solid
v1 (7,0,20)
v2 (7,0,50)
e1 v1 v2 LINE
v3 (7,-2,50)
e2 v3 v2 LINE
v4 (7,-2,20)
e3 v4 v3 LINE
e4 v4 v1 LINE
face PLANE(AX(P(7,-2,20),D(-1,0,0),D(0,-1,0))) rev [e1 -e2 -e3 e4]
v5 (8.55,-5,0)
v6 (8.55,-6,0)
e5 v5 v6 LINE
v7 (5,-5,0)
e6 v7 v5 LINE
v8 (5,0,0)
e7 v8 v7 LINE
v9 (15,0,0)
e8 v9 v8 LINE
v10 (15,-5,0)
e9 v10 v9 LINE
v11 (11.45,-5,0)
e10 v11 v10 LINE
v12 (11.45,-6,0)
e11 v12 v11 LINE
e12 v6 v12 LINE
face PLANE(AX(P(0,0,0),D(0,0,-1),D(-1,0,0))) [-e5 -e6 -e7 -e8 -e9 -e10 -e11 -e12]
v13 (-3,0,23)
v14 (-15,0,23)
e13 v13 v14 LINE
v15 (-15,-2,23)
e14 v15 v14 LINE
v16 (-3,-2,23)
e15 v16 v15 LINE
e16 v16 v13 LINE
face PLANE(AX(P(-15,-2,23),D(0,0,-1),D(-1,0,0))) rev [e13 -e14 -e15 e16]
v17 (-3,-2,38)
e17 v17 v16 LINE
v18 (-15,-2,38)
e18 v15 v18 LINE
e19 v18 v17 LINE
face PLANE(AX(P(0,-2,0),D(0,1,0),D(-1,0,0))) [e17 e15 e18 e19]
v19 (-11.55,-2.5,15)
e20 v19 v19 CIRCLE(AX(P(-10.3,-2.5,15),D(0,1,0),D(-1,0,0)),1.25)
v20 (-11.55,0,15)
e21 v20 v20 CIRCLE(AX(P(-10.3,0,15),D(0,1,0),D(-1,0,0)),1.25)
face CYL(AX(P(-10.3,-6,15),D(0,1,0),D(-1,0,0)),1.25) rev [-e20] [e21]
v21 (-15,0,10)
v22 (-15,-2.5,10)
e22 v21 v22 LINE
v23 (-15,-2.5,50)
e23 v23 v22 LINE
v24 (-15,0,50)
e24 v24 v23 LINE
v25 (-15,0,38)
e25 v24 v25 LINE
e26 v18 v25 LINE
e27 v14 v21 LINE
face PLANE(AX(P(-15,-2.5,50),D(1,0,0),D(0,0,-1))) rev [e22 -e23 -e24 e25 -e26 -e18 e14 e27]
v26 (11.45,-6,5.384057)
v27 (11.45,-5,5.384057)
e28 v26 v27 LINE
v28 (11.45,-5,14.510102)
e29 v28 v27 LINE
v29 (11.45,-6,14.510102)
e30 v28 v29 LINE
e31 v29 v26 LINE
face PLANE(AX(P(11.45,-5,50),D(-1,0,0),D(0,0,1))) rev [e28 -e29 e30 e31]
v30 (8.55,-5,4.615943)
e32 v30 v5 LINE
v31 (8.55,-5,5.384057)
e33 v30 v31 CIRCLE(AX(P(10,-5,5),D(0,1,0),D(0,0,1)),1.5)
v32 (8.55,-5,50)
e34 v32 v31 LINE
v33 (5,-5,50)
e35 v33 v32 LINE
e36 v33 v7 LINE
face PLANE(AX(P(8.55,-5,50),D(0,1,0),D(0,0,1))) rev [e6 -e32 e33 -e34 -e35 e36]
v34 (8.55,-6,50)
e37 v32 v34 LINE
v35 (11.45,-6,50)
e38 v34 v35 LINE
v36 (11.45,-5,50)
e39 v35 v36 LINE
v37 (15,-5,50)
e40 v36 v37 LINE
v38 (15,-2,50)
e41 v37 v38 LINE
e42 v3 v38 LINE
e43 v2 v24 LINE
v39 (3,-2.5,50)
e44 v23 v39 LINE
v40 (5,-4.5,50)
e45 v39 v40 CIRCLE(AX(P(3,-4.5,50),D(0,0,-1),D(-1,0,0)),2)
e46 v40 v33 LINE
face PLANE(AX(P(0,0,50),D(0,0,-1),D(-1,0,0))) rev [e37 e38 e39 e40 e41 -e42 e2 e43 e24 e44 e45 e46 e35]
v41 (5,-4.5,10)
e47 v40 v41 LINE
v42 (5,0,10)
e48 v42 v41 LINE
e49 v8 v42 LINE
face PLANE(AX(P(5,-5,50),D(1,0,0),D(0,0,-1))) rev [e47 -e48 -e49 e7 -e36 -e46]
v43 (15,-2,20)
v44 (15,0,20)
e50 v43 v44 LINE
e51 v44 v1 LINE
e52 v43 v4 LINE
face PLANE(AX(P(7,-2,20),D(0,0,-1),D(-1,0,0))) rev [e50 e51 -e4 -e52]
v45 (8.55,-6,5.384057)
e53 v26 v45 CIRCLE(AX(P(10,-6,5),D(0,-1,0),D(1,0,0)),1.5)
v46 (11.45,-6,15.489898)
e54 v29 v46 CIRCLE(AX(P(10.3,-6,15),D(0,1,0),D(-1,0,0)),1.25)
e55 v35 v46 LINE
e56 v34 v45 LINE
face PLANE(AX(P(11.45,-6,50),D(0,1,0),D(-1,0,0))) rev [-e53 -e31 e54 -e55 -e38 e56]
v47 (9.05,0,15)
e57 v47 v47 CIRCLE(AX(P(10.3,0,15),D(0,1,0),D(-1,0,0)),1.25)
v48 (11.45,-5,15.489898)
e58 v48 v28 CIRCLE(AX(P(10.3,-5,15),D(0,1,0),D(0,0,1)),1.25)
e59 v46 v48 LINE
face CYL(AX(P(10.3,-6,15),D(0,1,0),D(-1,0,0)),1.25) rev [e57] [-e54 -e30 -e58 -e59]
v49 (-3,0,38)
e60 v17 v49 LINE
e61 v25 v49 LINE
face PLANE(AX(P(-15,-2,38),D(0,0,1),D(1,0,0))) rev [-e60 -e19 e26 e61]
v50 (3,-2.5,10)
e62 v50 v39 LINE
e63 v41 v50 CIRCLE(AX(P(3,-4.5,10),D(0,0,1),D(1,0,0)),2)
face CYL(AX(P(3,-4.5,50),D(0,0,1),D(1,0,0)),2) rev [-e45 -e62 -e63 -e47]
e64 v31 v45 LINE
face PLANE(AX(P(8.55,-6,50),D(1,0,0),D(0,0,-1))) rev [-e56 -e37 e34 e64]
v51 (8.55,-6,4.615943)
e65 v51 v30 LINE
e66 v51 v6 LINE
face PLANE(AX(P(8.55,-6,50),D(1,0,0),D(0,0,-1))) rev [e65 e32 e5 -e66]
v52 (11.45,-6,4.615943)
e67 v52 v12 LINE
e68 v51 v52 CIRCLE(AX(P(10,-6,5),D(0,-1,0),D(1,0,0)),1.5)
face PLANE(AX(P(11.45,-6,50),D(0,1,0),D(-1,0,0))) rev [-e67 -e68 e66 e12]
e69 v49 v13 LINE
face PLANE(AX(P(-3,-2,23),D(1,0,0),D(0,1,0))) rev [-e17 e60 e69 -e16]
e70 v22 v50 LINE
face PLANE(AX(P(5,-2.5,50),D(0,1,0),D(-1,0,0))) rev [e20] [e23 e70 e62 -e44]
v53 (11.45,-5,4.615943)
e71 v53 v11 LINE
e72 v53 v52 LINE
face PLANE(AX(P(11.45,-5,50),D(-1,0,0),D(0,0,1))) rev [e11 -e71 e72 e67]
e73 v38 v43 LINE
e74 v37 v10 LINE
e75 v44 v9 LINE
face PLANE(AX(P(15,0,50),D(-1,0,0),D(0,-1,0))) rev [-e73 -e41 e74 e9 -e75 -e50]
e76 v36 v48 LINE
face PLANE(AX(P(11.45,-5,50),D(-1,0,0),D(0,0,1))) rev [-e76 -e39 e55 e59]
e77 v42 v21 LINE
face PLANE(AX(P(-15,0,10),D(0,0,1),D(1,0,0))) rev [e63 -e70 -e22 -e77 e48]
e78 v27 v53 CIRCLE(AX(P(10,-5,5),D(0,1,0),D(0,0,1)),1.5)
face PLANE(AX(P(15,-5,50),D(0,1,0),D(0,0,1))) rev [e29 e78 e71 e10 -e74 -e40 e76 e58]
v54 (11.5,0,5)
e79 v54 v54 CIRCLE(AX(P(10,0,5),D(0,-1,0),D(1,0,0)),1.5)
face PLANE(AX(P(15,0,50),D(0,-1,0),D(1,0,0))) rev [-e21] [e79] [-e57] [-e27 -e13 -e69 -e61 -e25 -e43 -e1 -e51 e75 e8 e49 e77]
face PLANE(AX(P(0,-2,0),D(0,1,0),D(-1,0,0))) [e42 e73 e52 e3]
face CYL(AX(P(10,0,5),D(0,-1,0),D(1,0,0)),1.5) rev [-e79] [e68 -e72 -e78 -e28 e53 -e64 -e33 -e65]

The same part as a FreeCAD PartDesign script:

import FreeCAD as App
import Part
import Sketcher
from FreeCAD import Vector


def edges_at(feature, points):
    """Names of the edges that pass closest to the given points."""
    edges = feature.Shape.Edges
    near = lambda p: min(range(len(edges)), key=lambda i: edges[i].distToShape(Part.Vertex(*p))[0])
    return sorted({f"Edge{near(p) + 1}" for p in points})

doc = App.newDocument("Part")
params = doc.addObject("Spreadsheet::Sheet", "Params")
for row, (alias, value) in enumerate([
    ("sketch1_width", "30 mm"),
    ("sketch1_width2", "20 mm"),
    ("sketch1_height", "5 mm"),
    ("sketch1_height2", "1 mm"),
    ("sketch1_width3", "2.9 mm"),
    ("pad1_length", "50 mm"),
    ("sketch2_diameter", "2.5 mm"),
    ("sketch3_width", "8 mm"),
    ("sketch3_width2", "12 mm"),
    ("sketch3_height", "30 mm"),
    ("sketch3_height2", "15 mm"),
    ("pocket2_length", "2 mm"),
    ("sketch4_diameter", "3 mm"),
    ("sketch4_width", "20 mm"),
    ("sketch4_height", "10 mm"),
    ("fillet_radius", "2 mm"),
], start=1):
    params.set(f"A{row}", alias)
    params.set(f"B{row}", "=" + value)
    params.setAlias(f"B{row}", alias)

body = doc.addObject("PartDesign::Body", "Body")

sketch1 = body.newObject("Sketcher::SketchObject", "Sketch")
sketch1.AttachmentSupport = (doc.getObject("XY_Plane"), [""])
sketch1.MapMode = "FlatFace"
sketch1.addGeometry([
    Part.LineSegment(Vector(15, -5, 0), Vector(15, 0, 0)),
    Part.LineSegment(Vector(15, 0, 0), Vector(-15, 0, 0)),
    Part.LineSegment(Vector(-15, 0, 0), Vector(-15, -2.5, 0)),
    Part.LineSegment(Vector(-15, -2.5, 0), Vector(5, -2.5, 0)),
    Part.LineSegment(Vector(5, -2.5, 0), Vector(5, -5, 0)),
    Part.LineSegment(Vector(5, -5, 0), Vector(8.6, -5, 0)),
    Part.LineSegment(Vector(8.6, -5, 0), Vector(8.6, -6, 0)),
    Part.LineSegment(Vector(8.6, -6, 0), Vector(11.4, -6, 0)),
    Part.LineSegment(Vector(11.4, -6, 0), Vector(11.4, -5, 0)),
    Part.LineSegment(Vector(11.4, -5, 0), Vector(15, -5, 0)),
], False)
sketch1.addConstraint([
    Sketcher.Constraint("Coincident", 0, 2, 1, 1),
    Sketcher.Constraint("Coincident", 1, 2, 2, 1),
    Sketcher.Constraint("Coincident", 2, 2, 3, 1),
    Sketcher.Constraint("Coincident", 3, 2, 4, 1),
    Sketcher.Constraint("Coincident", 4, 2, 5, 1),
    Sketcher.Constraint("Coincident", 5, 2, 6, 1),
    Sketcher.Constraint("Coincident", 6, 2, 7, 1),
    Sketcher.Constraint("Coincident", 7, 2, 8, 1),
    Sketcher.Constraint("Coincident", 8, 2, 9, 1),
    Sketcher.Constraint("Coincident", 9, 2, 0, 1),
    Sketcher.Constraint("Vertical", 0),
    Sketcher.Constraint("Horizontal", 1),
    Sketcher.Constraint("Vertical", 2),
    Sketcher.Constraint("Horizontal", 3),
    Sketcher.Constraint("Vertical", 4),
    Sketcher.Constraint("Horizontal", 5),
    Sketcher.Constraint("Vertical", 6),
    Sketcher.Constraint("Horizontal", 7),
    Sketcher.Constraint("Vertical", 8),
    Sketcher.Constraint("Horizontal", 9),
    Sketcher.Constraint("Symmetric", 0, 2, 1, 2, -1, 1),
    Sketcher.Constraint("Horizontal", 5, 2, 8, 2),
    Sketcher.Constraint("Equal", 5, 9),
    Sketcher.Constraint("Equal", 2, 4),
    Sketcher.Constraint("DistanceX", 1, 2, 1, 1, 30.0),
    Sketcher.Constraint("DistanceX", 3, 1, 3, 2, 20.0),
    Sketcher.Constraint("DistanceY", 0, 1, 0, 2, 5.0),
    Sketcher.Constraint("DistanceY", 6, 2, 6, 1, 1.0),
    Sketcher.Constraint("DistanceX", 7, 1, 7, 2, 2.9),
])
sketch1.setExpression("Constraints[24]", "Params.sketch1_width")
sketch1.setExpression("Constraints[25]", "Params.sketch1_width2")
sketch1.setExpression("Constraints[26]", "Params.sketch1_height")
sketch1.setExpression("Constraints[27]", "Params.sketch1_height2")
sketch1.setExpression("Constraints[28]", "Params.sketch1_width3")
pad1 = body.newObject("PartDesign::Pad", "Pad")
pad1.Profile = sketch1
pad1.setExpression("Length", "Params.pad1_length")

sketch2 = body.newObject("Sketcher::SketchObject", "Sketch001")
sketch2.AttachmentSupport = (doc.getObject("XZ_Plane"), [""])
sketch2.MapMode = "FlatFace"
sketch2.addGeometry([
    Part.Circle(Vector(-10.3, 15, 0), Vector(0, 0, 1), 1.2),
    Part.Circle(Vector(10.3, 15, 0), Vector(0, 0, 1), 1.2),
], False)
sketch2.addConstraint([
    Sketcher.Constraint("Equal", 0, 1),
    Sketcher.Constraint("Symmetric", 0, 3, 1, 3, -2),
    Sketcher.Constraint("Diameter", 0, 2.5),
    Sketcher.Constraint("DistanceY", -1, 1, 0, 3, 15.0),
    Sketcher.Constraint("DistanceX", 0, 3, -1, 1, 10.3),
])
sketch2.setExpression("Constraints[2]", "Params.sketch2_diameter")
pocket1 = body.newObject("PartDesign::Pocket", "Pocket")
pocket1.Profile = sketch2
pocket1.Type = "ThroughAll"
pocket1.Reversed = True

sketch3 = body.newObject("Sketcher::SketchObject", "Sketch002")
sketch3.AttachmentSupport = (doc.getObject("XZ_Plane"), [""])
sketch3.MapMode = "FlatFace"
sketch3.addGeometry([
    Part.LineSegment(Vector(7, 20, 0), Vector(7, 50, 0)),
    Part.LineSegment(Vector(7, 50, 0), Vector(15, 50, 0)),
    Part.LineSegment(Vector(15, 50, 0), Vector(15, 20, 0)),
    Part.LineSegment(Vector(15, 20, 0), Vector(7, 20, 0)),
    Part.LineSegment(Vector(-15, 23, 0), Vector(-15, 38, 0)),
    Part.LineSegment(Vector(-15, 38, 0), Vector(-3, 38, 0)),
    Part.LineSegment(Vector(-3, 38, 0), Vector(-3, 23, 0)),
    Part.LineSegment(Vector(-3, 23, 0), Vector(-15, 23, 0)),
], False)
sketch3.addConstraint([
    Sketcher.Constraint("Coincident", 0, 2, 1, 1),
    Sketcher.Constraint("Coincident", 1, 2, 2, 1),
    Sketcher.Constraint("Coincident", 2, 2, 3, 1),
    Sketcher.Constraint("Coincident", 3, 2, 0, 1),
    Sketcher.Constraint("Coincident", 4, 2, 5, 1),
    Sketcher.Constraint("Coincident", 5, 2, 6, 1),
    Sketcher.Constraint("Coincident", 6, 2, 7, 1),
    Sketcher.Constraint("Coincident", 7, 2, 4, 1),
    Sketcher.Constraint("Vertical", 0),
    Sketcher.Constraint("Horizontal", 1),
    Sketcher.Constraint("Vertical", 2),
    Sketcher.Constraint("Horizontal", 3),
    Sketcher.Constraint("Vertical", 4),
    Sketcher.Constraint("Horizontal", 5),
    Sketcher.Constraint("Vertical", 6),
    Sketcher.Constraint("Horizontal", 7),
    Sketcher.Constraint("DistanceX", 1, 1, 1, 2, 8.0),
    Sketcher.Constraint("DistanceX", 5, 1, 5, 2, 12.0),
    Sketcher.Constraint("DistanceY", 0, 1, 0, 2, 30.0),
    Sketcher.Constraint("DistanceY", 4, 1, 4, 2, 15.0),
    Sketcher.Constraint("DistanceX", -1, 1, 0, 2, 7.0),
    Sketcher.Constraint("DistanceY", -1, 1, 0, 2, 50.0),
    Sketcher.Constraint("DistanceX", 4, 2, -1, 1, 15.0),
    Sketcher.Constraint("DistanceY", -1, 1, 4, 2, 38.0),
])
sketch3.setExpression("Constraints[16]", "Params.sketch3_width")
sketch3.setExpression("Constraints[17]", "Params.sketch3_width2")
sketch3.setExpression("Constraints[18]", "Params.sketch3_height")
sketch3.setExpression("Constraints[19]", "Params.sketch3_height2")
pocket2 = body.newObject("PartDesign::Pocket", "Pocket001")
pocket2.Profile = sketch3
pocket2.setExpression("Length", "Params.pocket2_length")
pocket2.Reversed = True

sketch4 = body.newObject("Sketcher::SketchObject", "Sketch003")
sketch4.AttachmentSupport = (doc.getObject("XZ_Plane"), [""])
sketch4.MapMode = "FlatFace"
sketch4.AttachmentOffset = App.Placement(Vector(0, 0, 6), App.Rotation())
sketch4.addGeometry([
    Part.Circle(Vector(10, 5, 0), Vector(0, 0, 1), 1.5),
    Part.LineSegment(Vector(5, 0, 0), Vector(5, 10, 0)),
    Part.LineSegment(Vector(5, 10, 0), Vector(-15, 10, 0)),
    Part.LineSegment(Vector(-15, 10, 0), Vector(-15, 0, 0)),
    Part.LineSegment(Vector(-15, 0, 0), Vector(5, 0, 0)),
], False)
sketch4.addConstraint([
    Sketcher.Constraint("Coincident", 1, 2, 2, 1),
    Sketcher.Constraint("Coincident", 2, 2, 3, 1),
    Sketcher.Constraint("Coincident", 3, 2, 4, 1),
    Sketcher.Constraint("Coincident", 4, 2, 1, 1),
    Sketcher.Constraint("Vertical", 1),
    Sketcher.Constraint("Horizontal", 2),
    Sketcher.Constraint("Vertical", 3),
    Sketcher.Constraint("Horizontal", 4),
    Sketcher.Constraint("PointOnObject", 3, 2, -1),
    Sketcher.Constraint("Diameter", 0, 3.0),
    Sketcher.Constraint("DistanceX", 2, 2, 2, 1, 20.0),
    Sketcher.Constraint("DistanceY", 1, 1, 1, 2, 10.0),
    Sketcher.Constraint("DistanceX", -1, 1, 0, 3, 10.0),
    Sketcher.Constraint("DistanceY", -1, 1, 0, 3, 5.0),
    Sketcher.Constraint("DistanceX", -1, 1, 1, 2, 5.0),
])
sketch4.setExpression("Constraints[9]", "Params.sketch4_diameter")
sketch4.setExpression("Constraints[10]", "Params.sketch4_width")
sketch4.setExpression("Constraints[11]", "Params.sketch4_height")
pocket3 = body.newObject("PartDesign::Pocket", "Pocket002")
pocket3.Profile = sketch4
pocket3.Type = "ThroughAll"
doc.recompute()

fillet = body.newObject("PartDesign::Fillet", "Fillet")
fillet.Base = (pocket3, edges_at(pocket3, [(5, -2.5, 30)]))
fillet.setExpression("Radius", "Params.fillet_radius")

doc.recompute()
